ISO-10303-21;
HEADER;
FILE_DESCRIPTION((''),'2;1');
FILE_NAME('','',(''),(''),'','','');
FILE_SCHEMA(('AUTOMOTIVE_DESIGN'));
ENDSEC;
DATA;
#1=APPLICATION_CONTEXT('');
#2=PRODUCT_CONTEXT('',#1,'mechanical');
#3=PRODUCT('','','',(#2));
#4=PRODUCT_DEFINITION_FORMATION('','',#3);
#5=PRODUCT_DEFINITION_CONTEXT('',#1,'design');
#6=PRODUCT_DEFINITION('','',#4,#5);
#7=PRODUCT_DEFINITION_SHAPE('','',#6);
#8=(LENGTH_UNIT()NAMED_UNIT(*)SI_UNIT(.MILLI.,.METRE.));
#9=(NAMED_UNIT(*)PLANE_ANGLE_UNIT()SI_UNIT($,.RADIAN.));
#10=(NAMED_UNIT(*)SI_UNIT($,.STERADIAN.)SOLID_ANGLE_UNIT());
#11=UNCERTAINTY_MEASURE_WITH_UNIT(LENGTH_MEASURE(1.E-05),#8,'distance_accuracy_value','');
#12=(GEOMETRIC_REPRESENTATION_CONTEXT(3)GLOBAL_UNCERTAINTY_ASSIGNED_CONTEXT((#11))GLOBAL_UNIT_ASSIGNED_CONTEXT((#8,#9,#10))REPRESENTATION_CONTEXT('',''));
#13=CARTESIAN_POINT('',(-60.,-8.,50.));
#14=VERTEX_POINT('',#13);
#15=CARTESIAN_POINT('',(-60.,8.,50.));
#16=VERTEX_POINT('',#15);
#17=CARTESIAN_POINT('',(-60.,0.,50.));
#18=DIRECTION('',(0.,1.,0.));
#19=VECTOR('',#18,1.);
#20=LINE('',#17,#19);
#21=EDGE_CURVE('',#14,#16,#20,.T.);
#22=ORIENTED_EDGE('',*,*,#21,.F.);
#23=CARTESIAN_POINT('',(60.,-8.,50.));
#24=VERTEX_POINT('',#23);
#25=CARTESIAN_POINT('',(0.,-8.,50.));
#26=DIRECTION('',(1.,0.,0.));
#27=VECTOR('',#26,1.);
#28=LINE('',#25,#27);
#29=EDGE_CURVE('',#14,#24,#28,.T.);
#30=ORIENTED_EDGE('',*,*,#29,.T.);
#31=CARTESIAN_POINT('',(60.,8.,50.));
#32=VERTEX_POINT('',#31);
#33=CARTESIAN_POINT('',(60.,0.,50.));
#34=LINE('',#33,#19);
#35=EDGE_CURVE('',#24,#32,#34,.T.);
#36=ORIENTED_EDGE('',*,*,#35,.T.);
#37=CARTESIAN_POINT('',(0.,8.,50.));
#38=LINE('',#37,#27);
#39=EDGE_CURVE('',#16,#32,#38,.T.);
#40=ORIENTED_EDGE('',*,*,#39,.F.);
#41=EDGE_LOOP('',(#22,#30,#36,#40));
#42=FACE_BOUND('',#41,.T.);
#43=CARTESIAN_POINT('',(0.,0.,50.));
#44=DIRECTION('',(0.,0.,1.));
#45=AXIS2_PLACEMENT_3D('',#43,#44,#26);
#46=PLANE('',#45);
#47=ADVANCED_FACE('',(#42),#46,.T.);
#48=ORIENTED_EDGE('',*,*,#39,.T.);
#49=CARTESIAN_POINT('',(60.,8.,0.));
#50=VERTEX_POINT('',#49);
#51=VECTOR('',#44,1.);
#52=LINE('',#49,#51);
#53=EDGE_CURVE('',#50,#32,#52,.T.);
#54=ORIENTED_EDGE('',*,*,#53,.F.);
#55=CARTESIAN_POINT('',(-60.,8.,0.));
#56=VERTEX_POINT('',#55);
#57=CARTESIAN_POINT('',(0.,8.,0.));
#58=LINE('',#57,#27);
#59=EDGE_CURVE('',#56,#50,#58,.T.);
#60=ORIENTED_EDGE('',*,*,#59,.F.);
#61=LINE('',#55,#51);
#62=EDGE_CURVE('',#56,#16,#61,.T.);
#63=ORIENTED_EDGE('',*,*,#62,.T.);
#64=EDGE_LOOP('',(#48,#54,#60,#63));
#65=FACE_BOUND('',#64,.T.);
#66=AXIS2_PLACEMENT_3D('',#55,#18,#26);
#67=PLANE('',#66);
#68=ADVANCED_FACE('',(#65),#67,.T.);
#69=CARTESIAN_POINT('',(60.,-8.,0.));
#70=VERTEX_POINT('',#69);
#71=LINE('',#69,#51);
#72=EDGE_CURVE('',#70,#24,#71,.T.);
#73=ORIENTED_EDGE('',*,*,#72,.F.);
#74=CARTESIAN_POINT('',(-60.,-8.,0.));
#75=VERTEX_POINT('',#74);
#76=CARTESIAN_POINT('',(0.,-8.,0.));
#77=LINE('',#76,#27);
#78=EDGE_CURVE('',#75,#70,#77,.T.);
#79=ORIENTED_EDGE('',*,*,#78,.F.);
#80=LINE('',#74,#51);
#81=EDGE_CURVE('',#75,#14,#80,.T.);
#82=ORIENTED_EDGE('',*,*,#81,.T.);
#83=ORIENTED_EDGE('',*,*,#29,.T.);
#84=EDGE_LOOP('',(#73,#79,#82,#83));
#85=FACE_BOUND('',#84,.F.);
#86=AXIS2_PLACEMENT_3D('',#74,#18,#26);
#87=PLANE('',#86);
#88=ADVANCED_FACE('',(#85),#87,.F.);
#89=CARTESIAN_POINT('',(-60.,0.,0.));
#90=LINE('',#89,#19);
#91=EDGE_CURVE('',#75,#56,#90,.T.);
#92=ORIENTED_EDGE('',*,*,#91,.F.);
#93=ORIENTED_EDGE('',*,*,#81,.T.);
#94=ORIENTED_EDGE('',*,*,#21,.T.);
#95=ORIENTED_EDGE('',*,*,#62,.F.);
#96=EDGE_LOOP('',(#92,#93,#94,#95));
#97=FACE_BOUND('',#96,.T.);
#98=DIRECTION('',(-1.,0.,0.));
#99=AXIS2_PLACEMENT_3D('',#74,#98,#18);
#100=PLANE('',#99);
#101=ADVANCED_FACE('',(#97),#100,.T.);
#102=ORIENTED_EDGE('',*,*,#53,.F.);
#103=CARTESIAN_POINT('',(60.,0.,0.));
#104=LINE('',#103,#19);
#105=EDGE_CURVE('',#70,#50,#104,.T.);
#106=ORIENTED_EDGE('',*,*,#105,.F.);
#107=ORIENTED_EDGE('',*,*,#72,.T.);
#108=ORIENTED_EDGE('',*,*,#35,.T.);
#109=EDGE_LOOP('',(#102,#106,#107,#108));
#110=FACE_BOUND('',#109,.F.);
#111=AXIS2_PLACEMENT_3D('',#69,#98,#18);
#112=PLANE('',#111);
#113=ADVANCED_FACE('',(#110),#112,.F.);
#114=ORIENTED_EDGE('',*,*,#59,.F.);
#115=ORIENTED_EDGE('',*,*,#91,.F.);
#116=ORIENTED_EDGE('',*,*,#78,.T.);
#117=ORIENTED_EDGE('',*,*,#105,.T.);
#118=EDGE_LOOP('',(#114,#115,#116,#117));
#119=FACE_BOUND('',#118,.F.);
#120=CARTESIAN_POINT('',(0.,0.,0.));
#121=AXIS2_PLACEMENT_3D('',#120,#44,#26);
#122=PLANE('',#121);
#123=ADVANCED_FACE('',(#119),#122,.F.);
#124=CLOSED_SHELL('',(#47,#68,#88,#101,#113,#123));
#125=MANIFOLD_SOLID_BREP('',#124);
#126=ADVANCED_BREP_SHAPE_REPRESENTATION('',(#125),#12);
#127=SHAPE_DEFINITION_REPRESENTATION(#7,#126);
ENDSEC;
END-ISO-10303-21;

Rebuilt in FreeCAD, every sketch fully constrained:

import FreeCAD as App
import Part
import Sketcher
from FreeCAD import Vector
Q = App.Units.Quantity


def add_polygon(sketch, points):
    """Adds a closed chain of lines whose ends are joined by coincident constraints."""
    first, n = sketch.GeometryCount, len(points)
    for a, b in zip(points, points[1:] + points[:1]):
        sketch.addGeometry(Part.LineSegment(App.Vector(*a, 0), App.Vector(*b, 0)), False)
    for i in range(n):
        sketch.addConstraint(Sketcher.Constraint("Coincident", first + i, 2, first + (i + 1) % n, 1))

doc = App.newDocument("Part")
params = doc.addObject("Spreadsheet::Sheet", "Params")
for row, (alias, value) in enumerate([
    ("sketch1_width", "120 mm"),
    ("sketch1_height", "16 mm"),
    ("pad1_length", "50 mm"),
], start=1):
    params.set(f"A{row}", alias)
    params.set(f"B{row}", "=" + value)
    params.setAlias(f"B{row}", alias)

body = doc.addObject("PartDesign::Body", "Body")

# Sketch on XY plane
sketch1 = body.newObject("Sketcher::SketchObject", "Sketch")
sketch1.AttachmentSupport = (doc.getObject("XY_Plane"), [""])
sketch1.MapMode = "FlatFace"
add_polygon(sketch1, [(-60, 8), (-60, -8), (60, -8), (60, 8)])  # lines 0-3
sketch1.addConstraint([
    Sketcher.Constraint("Vertical", 0),
    Sketcher.Constraint("Horizontal", 1),
    Sketcher.Constraint("Vertical", 2),
    Sketcher.Constraint("Horizontal", 3),
    Sketcher.Constraint("Symmetric", 0, 2, 2, 2, -1, 1),
    Sketcher.Constraint("DistanceX", 1, 1, 1, 2, Q("120 mm")),
    Sketcher.Constraint("DistanceY", 0, 2, 0, 1, Q("16 mm")),
])
sketch1.setExpression("Constraints[9]", "Params.sketch1_width")
sketch1.setExpression("Constraints[10]", "Params.sketch1_height")
pad1 = body.newObject("PartDesign::Pad", "Pad")
pad1.Profile = sketch1
pad1.setExpression("Length", "Params.pad1_length")

doc.recompute()
